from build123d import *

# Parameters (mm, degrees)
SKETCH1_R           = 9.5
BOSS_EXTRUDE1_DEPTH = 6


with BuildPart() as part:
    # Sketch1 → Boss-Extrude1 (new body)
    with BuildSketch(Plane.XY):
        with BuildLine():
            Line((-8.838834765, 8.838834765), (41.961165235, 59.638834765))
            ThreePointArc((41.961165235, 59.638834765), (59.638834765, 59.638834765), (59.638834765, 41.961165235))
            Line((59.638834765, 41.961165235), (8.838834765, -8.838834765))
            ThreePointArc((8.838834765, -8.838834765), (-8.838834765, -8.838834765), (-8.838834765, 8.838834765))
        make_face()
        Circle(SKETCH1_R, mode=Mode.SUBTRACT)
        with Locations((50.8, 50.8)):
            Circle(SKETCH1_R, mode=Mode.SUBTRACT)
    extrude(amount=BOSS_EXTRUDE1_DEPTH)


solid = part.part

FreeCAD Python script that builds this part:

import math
import FreeCAD as App
import Part
import Sketcher

V = App.Vector
Q = App.Units.Quantity

doc = App.newDocument("Part")
params = doc.addObject("Spreadsheet::Sheet", "Params")
for row, (alias, value) in enumerate([
    ("sketch1_diameter", "19 mm"),
    ("sketch1_radius", "12.5 mm"),
    ("pad1_length", "6 mm"),
], start=1):
    params.set(f"A{row}", alias)
    params.set(f"B{row}", "=" + value)
    params.setAlias(f"B{row}", alias)

body = doc.addObject("PartDesign::Body", "Body")

sketch1 = body.newObject("Sketcher::SketchObject", "Sketch")
sketch1.AttachmentSupport = (doc.getObject("XY_Plane"), [""])
sketch1.MapMode = "FlatFace"
sketch1.addGeometry([
    Part.LineSegment(V(42, 60, 0), V(-9, 9, 0)),
    Part.ArcOfCircle(Part.Circle(V(0, 0, 0), V(0, 0, 1), 12), math.radians(135), math.radians(315)),
    Part.LineSegment(V(9, -9, 0), V(60, 42, 0)),
    Part.ArcOfCircle(Part.Circle(V(51, 51, 0), V(0, 0, 1), 12), math.radians(-45), math.radians(135)),
    Part.Circle(V(0, 0, 0), V(0, 0, 1), 10),
    Part.Circle(V(51, 51, 0), V(0, 0, 1), 10),
], False)
sketch1.addConstraint([
    Sketcher.Constraint("Tangent", 0, 2, 1, 1),
    Sketcher.Constraint("Tangent", 1, 2, 2, 1),
    Sketcher.Constraint("Tangent", 2, 2, 3, 1),
    Sketcher.Constraint("Tangent", 3, 2, 0, 1),
    Sketcher.Constraint("Coincident", 1, 3, -1, 1),
    Sketcher.Constraint("Coincident", 4, 3, -1, 1),
    Sketcher.Constraint("Coincident", 5, 3, 3, 3),
    Sketcher.Constraint("Equal", 1, 3),
    Sketcher.Constraint("Equal", 4, 5),
    Sketcher.Constraint("Diameter", 4, 19.0),
    Sketcher.Constraint("Radius", 1, 12.5),
    Sketcher.Constraint("Angle", 0, Q("-135 deg")),
    Sketcher.Constraint("DistanceX", -1, 1, 3, 3, 50.8),
])
sketch1.setExpression("Constraints[9]", "Params.sketch1_diameter")
sketch1.setExpression("Constraints[10]", "Params.sketch1_radius")
pad1 = body.newObject("PartDesign::Pad", "Pad")
pad1.Profile = sketch1
pad1.setExpression("Length", "Params.pad1_length")

doc.recompute()
